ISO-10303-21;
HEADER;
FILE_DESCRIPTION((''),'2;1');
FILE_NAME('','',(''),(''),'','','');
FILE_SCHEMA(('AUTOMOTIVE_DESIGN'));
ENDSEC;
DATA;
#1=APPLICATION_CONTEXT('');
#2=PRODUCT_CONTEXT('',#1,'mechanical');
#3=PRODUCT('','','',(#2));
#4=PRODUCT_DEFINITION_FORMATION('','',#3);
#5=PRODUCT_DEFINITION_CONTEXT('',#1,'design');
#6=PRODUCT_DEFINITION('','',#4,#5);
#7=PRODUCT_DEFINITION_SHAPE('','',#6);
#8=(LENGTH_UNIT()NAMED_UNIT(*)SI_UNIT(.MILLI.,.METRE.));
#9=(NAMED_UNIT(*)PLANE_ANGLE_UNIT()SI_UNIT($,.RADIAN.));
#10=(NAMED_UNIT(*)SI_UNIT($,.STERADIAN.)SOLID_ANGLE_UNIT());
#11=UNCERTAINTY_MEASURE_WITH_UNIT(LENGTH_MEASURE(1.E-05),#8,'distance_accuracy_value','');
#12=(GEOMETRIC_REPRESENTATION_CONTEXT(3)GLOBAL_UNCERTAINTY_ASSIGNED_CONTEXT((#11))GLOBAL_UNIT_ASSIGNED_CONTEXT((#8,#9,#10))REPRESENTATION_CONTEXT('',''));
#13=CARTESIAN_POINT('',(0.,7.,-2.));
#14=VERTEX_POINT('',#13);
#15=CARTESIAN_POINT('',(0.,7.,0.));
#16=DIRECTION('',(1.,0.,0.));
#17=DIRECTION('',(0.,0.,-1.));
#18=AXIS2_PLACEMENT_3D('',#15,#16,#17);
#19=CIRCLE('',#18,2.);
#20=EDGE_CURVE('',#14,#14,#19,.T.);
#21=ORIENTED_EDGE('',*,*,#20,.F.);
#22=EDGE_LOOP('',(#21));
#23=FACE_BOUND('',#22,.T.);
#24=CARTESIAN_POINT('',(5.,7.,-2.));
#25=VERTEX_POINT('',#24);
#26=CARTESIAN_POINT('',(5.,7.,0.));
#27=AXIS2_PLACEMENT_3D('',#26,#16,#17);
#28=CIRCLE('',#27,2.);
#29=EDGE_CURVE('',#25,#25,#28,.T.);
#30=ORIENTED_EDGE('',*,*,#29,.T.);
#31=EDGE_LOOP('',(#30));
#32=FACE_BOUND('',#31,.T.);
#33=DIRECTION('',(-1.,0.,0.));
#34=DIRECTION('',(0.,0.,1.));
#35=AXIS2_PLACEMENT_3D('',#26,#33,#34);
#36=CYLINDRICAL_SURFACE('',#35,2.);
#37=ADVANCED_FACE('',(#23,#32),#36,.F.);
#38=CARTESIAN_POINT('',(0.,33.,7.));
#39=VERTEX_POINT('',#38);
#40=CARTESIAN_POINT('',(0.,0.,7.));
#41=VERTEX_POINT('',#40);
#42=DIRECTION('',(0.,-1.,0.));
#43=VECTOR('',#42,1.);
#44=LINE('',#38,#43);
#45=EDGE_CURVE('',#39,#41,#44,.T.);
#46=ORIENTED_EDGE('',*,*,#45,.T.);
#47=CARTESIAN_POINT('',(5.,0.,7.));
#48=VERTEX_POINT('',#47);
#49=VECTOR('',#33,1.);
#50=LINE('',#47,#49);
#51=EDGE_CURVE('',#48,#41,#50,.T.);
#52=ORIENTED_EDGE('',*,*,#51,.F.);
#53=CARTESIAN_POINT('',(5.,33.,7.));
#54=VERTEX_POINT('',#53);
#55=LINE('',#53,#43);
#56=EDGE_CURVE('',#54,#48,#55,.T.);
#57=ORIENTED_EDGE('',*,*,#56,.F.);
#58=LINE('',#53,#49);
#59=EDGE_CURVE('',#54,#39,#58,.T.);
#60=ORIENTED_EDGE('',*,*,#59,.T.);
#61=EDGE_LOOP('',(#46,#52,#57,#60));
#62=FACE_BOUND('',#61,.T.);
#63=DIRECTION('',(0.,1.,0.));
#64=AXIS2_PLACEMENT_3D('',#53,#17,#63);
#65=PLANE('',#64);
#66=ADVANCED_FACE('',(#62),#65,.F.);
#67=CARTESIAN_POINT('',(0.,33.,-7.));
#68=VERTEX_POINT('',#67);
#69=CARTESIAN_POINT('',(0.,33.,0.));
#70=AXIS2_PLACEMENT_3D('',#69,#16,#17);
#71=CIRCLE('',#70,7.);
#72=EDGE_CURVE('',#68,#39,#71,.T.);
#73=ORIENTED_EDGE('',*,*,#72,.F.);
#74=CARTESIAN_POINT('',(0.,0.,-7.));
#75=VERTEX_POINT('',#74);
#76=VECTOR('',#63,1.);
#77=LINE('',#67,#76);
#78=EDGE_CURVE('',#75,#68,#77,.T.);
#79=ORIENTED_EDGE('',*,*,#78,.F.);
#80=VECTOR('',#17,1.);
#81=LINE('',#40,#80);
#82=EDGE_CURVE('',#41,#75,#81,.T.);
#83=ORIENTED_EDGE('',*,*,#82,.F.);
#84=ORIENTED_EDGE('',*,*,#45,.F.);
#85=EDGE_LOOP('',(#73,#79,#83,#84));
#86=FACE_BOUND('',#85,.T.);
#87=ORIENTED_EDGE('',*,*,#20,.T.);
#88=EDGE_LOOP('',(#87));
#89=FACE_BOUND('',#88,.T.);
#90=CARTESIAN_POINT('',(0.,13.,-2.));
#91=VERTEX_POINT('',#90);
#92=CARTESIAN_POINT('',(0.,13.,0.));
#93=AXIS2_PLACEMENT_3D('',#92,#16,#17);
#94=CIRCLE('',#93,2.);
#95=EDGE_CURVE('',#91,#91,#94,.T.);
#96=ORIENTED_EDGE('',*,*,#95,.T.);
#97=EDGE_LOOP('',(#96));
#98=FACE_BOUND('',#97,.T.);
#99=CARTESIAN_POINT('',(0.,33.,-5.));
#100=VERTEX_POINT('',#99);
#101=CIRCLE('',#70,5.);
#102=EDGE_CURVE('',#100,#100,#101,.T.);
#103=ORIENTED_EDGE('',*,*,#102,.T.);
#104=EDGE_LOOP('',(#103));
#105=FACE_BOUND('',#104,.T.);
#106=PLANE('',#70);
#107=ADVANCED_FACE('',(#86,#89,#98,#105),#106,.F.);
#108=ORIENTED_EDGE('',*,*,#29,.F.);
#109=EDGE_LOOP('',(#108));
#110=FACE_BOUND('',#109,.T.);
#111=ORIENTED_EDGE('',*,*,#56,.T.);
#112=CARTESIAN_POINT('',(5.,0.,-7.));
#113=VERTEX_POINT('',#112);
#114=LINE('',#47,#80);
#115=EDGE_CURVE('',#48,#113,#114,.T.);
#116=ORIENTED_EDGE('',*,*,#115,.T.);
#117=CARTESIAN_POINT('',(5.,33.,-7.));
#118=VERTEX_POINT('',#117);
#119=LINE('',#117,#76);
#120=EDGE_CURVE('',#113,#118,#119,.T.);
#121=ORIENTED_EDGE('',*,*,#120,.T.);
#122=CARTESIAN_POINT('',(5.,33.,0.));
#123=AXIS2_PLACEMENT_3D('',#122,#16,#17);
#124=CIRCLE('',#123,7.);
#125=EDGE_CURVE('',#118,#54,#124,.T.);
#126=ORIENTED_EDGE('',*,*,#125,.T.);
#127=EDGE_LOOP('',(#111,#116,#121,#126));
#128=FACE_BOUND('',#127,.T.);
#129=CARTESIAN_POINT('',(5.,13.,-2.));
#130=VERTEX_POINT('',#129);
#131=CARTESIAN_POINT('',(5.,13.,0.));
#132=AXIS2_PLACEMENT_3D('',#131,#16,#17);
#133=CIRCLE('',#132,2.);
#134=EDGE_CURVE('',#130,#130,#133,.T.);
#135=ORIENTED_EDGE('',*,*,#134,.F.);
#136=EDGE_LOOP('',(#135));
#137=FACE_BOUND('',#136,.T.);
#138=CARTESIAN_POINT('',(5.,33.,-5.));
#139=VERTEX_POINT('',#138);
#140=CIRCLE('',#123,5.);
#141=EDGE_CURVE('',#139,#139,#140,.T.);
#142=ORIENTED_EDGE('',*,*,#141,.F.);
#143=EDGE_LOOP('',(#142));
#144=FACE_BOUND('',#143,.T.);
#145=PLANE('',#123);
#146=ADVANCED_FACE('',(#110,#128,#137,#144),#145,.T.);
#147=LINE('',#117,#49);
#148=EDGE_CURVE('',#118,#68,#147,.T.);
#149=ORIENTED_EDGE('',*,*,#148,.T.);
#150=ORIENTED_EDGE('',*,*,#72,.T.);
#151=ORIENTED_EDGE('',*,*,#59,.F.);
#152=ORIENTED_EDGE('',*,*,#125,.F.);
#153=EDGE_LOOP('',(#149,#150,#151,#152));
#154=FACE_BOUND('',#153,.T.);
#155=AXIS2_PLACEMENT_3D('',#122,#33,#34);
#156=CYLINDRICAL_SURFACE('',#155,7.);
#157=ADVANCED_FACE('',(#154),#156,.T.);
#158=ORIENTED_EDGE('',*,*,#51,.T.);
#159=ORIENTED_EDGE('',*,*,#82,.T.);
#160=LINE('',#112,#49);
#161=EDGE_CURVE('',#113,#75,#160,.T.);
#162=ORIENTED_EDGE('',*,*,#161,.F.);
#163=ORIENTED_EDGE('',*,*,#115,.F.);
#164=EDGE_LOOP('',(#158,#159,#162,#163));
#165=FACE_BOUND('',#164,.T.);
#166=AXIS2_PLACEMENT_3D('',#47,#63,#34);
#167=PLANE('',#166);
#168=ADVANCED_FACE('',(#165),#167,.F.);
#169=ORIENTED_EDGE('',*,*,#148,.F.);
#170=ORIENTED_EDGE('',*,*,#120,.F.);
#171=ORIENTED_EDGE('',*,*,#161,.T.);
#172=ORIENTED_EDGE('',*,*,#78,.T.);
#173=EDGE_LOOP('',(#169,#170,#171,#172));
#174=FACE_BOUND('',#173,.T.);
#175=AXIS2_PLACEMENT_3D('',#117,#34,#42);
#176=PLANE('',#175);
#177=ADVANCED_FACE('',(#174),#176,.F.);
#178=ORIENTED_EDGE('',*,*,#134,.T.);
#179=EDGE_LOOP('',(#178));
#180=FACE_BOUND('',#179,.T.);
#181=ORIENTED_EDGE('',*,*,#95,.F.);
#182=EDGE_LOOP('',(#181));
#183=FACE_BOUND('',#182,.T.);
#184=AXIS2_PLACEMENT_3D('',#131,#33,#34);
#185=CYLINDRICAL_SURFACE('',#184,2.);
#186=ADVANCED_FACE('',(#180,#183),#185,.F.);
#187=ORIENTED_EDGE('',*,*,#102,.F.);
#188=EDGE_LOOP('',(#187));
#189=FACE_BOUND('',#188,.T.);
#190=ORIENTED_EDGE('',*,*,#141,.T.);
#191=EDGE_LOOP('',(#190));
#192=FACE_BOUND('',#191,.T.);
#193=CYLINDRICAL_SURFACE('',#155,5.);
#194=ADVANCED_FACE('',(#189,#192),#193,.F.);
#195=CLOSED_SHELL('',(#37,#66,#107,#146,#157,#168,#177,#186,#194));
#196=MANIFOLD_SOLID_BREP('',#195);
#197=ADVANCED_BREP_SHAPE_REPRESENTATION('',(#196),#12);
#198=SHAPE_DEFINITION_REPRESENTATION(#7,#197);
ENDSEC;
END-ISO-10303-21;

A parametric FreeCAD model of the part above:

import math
import FreeCAD as App
import Part
import Sketcher

doc = App.newDocument("Part")
body = doc.addObject("PartDesign::Body", "Body")

sketch1 = body.newObject("Sketcher::SketchObject", "Sketch")
sketch1.AttachmentSupport = (doc.getObject("YZ_Plane"), [""])
sketch1.MapMode = "FlatFace"
sketch1.addGeometry([
    Part.LineSegment(App.Vector(33, 7, 0), App.Vector(0, 7, 0)),
    Part.LineSegment(App.Vector(0, 7, 0), App.Vector(0, -7, 0)),
    Part.LineSegment(App.Vector(0, -7, 0), App.Vector(33, -7, 0)),
    Part.ArcOfCircle(Part.Circle(App.Vector(33, 0, 0), App.Vector(0, 0, 1), 7), math.radians(-90), math.radians(90)),
    Part.Circle(App.Vector(7, 0, 0), App.Vector(0, 0, 1), 2),
    Part.Circle(App.Vector(13, 0, 0), App.Vector(0, 0, 1), 2),
    Part.Circle(App.Vector(33, 0, 0), App.Vector(0, 0, 1), 5),
], False)
sketch1.addConstraint([
    Sketcher.Constraint("Coincident", 0, 2, 1, 1),
    Sketcher.Constraint("Coincident", 1, 2, 2, 1),
    Sketcher.Constraint("Tangent", 2, 2, 3, 1),
    Sketcher.Constraint("Tangent", 3, 2, 0, 1),
    Sketcher.Constraint("Horizontal", 0),
    Sketcher.Constraint("Vertical", 1),
    Sketcher.Constraint("Horizontal", 2),
    Sketcher.Constraint("Coincident", 6, 3, 3, 3),
    Sketcher.Constraint("Equal", 4, 5),
    Sketcher.Constraint("Symmetric", 0, 2, 1, 2, -1, 1),
    Sketcher.Constraint("PointOnObject", 4, 3, -1),
    Sketcher.Constraint("PointOnObject", 5, 3, -1),
    Sketcher.Constraint("Diameter", 4, 4.0),
    Sketcher.Constraint("Diameter", 6, 10.0),
    Sketcher.Constraint("Radius", 3, 7.0),
    Sketcher.Constraint("DistanceX", 0, 2, 0, 1, 33.0),
    Sketcher.Constraint("DistanceX", -1, 1, 4, 3, 7.0),
    Sketcher.Constraint("DistanceX", -1, 1, 5, 3, 13.0),
])
pad1 = body.newObject("PartDesign::Pad", "Pad")
pad1.Profile = sketch1
pad1.Length = 5

doc.recompute()
